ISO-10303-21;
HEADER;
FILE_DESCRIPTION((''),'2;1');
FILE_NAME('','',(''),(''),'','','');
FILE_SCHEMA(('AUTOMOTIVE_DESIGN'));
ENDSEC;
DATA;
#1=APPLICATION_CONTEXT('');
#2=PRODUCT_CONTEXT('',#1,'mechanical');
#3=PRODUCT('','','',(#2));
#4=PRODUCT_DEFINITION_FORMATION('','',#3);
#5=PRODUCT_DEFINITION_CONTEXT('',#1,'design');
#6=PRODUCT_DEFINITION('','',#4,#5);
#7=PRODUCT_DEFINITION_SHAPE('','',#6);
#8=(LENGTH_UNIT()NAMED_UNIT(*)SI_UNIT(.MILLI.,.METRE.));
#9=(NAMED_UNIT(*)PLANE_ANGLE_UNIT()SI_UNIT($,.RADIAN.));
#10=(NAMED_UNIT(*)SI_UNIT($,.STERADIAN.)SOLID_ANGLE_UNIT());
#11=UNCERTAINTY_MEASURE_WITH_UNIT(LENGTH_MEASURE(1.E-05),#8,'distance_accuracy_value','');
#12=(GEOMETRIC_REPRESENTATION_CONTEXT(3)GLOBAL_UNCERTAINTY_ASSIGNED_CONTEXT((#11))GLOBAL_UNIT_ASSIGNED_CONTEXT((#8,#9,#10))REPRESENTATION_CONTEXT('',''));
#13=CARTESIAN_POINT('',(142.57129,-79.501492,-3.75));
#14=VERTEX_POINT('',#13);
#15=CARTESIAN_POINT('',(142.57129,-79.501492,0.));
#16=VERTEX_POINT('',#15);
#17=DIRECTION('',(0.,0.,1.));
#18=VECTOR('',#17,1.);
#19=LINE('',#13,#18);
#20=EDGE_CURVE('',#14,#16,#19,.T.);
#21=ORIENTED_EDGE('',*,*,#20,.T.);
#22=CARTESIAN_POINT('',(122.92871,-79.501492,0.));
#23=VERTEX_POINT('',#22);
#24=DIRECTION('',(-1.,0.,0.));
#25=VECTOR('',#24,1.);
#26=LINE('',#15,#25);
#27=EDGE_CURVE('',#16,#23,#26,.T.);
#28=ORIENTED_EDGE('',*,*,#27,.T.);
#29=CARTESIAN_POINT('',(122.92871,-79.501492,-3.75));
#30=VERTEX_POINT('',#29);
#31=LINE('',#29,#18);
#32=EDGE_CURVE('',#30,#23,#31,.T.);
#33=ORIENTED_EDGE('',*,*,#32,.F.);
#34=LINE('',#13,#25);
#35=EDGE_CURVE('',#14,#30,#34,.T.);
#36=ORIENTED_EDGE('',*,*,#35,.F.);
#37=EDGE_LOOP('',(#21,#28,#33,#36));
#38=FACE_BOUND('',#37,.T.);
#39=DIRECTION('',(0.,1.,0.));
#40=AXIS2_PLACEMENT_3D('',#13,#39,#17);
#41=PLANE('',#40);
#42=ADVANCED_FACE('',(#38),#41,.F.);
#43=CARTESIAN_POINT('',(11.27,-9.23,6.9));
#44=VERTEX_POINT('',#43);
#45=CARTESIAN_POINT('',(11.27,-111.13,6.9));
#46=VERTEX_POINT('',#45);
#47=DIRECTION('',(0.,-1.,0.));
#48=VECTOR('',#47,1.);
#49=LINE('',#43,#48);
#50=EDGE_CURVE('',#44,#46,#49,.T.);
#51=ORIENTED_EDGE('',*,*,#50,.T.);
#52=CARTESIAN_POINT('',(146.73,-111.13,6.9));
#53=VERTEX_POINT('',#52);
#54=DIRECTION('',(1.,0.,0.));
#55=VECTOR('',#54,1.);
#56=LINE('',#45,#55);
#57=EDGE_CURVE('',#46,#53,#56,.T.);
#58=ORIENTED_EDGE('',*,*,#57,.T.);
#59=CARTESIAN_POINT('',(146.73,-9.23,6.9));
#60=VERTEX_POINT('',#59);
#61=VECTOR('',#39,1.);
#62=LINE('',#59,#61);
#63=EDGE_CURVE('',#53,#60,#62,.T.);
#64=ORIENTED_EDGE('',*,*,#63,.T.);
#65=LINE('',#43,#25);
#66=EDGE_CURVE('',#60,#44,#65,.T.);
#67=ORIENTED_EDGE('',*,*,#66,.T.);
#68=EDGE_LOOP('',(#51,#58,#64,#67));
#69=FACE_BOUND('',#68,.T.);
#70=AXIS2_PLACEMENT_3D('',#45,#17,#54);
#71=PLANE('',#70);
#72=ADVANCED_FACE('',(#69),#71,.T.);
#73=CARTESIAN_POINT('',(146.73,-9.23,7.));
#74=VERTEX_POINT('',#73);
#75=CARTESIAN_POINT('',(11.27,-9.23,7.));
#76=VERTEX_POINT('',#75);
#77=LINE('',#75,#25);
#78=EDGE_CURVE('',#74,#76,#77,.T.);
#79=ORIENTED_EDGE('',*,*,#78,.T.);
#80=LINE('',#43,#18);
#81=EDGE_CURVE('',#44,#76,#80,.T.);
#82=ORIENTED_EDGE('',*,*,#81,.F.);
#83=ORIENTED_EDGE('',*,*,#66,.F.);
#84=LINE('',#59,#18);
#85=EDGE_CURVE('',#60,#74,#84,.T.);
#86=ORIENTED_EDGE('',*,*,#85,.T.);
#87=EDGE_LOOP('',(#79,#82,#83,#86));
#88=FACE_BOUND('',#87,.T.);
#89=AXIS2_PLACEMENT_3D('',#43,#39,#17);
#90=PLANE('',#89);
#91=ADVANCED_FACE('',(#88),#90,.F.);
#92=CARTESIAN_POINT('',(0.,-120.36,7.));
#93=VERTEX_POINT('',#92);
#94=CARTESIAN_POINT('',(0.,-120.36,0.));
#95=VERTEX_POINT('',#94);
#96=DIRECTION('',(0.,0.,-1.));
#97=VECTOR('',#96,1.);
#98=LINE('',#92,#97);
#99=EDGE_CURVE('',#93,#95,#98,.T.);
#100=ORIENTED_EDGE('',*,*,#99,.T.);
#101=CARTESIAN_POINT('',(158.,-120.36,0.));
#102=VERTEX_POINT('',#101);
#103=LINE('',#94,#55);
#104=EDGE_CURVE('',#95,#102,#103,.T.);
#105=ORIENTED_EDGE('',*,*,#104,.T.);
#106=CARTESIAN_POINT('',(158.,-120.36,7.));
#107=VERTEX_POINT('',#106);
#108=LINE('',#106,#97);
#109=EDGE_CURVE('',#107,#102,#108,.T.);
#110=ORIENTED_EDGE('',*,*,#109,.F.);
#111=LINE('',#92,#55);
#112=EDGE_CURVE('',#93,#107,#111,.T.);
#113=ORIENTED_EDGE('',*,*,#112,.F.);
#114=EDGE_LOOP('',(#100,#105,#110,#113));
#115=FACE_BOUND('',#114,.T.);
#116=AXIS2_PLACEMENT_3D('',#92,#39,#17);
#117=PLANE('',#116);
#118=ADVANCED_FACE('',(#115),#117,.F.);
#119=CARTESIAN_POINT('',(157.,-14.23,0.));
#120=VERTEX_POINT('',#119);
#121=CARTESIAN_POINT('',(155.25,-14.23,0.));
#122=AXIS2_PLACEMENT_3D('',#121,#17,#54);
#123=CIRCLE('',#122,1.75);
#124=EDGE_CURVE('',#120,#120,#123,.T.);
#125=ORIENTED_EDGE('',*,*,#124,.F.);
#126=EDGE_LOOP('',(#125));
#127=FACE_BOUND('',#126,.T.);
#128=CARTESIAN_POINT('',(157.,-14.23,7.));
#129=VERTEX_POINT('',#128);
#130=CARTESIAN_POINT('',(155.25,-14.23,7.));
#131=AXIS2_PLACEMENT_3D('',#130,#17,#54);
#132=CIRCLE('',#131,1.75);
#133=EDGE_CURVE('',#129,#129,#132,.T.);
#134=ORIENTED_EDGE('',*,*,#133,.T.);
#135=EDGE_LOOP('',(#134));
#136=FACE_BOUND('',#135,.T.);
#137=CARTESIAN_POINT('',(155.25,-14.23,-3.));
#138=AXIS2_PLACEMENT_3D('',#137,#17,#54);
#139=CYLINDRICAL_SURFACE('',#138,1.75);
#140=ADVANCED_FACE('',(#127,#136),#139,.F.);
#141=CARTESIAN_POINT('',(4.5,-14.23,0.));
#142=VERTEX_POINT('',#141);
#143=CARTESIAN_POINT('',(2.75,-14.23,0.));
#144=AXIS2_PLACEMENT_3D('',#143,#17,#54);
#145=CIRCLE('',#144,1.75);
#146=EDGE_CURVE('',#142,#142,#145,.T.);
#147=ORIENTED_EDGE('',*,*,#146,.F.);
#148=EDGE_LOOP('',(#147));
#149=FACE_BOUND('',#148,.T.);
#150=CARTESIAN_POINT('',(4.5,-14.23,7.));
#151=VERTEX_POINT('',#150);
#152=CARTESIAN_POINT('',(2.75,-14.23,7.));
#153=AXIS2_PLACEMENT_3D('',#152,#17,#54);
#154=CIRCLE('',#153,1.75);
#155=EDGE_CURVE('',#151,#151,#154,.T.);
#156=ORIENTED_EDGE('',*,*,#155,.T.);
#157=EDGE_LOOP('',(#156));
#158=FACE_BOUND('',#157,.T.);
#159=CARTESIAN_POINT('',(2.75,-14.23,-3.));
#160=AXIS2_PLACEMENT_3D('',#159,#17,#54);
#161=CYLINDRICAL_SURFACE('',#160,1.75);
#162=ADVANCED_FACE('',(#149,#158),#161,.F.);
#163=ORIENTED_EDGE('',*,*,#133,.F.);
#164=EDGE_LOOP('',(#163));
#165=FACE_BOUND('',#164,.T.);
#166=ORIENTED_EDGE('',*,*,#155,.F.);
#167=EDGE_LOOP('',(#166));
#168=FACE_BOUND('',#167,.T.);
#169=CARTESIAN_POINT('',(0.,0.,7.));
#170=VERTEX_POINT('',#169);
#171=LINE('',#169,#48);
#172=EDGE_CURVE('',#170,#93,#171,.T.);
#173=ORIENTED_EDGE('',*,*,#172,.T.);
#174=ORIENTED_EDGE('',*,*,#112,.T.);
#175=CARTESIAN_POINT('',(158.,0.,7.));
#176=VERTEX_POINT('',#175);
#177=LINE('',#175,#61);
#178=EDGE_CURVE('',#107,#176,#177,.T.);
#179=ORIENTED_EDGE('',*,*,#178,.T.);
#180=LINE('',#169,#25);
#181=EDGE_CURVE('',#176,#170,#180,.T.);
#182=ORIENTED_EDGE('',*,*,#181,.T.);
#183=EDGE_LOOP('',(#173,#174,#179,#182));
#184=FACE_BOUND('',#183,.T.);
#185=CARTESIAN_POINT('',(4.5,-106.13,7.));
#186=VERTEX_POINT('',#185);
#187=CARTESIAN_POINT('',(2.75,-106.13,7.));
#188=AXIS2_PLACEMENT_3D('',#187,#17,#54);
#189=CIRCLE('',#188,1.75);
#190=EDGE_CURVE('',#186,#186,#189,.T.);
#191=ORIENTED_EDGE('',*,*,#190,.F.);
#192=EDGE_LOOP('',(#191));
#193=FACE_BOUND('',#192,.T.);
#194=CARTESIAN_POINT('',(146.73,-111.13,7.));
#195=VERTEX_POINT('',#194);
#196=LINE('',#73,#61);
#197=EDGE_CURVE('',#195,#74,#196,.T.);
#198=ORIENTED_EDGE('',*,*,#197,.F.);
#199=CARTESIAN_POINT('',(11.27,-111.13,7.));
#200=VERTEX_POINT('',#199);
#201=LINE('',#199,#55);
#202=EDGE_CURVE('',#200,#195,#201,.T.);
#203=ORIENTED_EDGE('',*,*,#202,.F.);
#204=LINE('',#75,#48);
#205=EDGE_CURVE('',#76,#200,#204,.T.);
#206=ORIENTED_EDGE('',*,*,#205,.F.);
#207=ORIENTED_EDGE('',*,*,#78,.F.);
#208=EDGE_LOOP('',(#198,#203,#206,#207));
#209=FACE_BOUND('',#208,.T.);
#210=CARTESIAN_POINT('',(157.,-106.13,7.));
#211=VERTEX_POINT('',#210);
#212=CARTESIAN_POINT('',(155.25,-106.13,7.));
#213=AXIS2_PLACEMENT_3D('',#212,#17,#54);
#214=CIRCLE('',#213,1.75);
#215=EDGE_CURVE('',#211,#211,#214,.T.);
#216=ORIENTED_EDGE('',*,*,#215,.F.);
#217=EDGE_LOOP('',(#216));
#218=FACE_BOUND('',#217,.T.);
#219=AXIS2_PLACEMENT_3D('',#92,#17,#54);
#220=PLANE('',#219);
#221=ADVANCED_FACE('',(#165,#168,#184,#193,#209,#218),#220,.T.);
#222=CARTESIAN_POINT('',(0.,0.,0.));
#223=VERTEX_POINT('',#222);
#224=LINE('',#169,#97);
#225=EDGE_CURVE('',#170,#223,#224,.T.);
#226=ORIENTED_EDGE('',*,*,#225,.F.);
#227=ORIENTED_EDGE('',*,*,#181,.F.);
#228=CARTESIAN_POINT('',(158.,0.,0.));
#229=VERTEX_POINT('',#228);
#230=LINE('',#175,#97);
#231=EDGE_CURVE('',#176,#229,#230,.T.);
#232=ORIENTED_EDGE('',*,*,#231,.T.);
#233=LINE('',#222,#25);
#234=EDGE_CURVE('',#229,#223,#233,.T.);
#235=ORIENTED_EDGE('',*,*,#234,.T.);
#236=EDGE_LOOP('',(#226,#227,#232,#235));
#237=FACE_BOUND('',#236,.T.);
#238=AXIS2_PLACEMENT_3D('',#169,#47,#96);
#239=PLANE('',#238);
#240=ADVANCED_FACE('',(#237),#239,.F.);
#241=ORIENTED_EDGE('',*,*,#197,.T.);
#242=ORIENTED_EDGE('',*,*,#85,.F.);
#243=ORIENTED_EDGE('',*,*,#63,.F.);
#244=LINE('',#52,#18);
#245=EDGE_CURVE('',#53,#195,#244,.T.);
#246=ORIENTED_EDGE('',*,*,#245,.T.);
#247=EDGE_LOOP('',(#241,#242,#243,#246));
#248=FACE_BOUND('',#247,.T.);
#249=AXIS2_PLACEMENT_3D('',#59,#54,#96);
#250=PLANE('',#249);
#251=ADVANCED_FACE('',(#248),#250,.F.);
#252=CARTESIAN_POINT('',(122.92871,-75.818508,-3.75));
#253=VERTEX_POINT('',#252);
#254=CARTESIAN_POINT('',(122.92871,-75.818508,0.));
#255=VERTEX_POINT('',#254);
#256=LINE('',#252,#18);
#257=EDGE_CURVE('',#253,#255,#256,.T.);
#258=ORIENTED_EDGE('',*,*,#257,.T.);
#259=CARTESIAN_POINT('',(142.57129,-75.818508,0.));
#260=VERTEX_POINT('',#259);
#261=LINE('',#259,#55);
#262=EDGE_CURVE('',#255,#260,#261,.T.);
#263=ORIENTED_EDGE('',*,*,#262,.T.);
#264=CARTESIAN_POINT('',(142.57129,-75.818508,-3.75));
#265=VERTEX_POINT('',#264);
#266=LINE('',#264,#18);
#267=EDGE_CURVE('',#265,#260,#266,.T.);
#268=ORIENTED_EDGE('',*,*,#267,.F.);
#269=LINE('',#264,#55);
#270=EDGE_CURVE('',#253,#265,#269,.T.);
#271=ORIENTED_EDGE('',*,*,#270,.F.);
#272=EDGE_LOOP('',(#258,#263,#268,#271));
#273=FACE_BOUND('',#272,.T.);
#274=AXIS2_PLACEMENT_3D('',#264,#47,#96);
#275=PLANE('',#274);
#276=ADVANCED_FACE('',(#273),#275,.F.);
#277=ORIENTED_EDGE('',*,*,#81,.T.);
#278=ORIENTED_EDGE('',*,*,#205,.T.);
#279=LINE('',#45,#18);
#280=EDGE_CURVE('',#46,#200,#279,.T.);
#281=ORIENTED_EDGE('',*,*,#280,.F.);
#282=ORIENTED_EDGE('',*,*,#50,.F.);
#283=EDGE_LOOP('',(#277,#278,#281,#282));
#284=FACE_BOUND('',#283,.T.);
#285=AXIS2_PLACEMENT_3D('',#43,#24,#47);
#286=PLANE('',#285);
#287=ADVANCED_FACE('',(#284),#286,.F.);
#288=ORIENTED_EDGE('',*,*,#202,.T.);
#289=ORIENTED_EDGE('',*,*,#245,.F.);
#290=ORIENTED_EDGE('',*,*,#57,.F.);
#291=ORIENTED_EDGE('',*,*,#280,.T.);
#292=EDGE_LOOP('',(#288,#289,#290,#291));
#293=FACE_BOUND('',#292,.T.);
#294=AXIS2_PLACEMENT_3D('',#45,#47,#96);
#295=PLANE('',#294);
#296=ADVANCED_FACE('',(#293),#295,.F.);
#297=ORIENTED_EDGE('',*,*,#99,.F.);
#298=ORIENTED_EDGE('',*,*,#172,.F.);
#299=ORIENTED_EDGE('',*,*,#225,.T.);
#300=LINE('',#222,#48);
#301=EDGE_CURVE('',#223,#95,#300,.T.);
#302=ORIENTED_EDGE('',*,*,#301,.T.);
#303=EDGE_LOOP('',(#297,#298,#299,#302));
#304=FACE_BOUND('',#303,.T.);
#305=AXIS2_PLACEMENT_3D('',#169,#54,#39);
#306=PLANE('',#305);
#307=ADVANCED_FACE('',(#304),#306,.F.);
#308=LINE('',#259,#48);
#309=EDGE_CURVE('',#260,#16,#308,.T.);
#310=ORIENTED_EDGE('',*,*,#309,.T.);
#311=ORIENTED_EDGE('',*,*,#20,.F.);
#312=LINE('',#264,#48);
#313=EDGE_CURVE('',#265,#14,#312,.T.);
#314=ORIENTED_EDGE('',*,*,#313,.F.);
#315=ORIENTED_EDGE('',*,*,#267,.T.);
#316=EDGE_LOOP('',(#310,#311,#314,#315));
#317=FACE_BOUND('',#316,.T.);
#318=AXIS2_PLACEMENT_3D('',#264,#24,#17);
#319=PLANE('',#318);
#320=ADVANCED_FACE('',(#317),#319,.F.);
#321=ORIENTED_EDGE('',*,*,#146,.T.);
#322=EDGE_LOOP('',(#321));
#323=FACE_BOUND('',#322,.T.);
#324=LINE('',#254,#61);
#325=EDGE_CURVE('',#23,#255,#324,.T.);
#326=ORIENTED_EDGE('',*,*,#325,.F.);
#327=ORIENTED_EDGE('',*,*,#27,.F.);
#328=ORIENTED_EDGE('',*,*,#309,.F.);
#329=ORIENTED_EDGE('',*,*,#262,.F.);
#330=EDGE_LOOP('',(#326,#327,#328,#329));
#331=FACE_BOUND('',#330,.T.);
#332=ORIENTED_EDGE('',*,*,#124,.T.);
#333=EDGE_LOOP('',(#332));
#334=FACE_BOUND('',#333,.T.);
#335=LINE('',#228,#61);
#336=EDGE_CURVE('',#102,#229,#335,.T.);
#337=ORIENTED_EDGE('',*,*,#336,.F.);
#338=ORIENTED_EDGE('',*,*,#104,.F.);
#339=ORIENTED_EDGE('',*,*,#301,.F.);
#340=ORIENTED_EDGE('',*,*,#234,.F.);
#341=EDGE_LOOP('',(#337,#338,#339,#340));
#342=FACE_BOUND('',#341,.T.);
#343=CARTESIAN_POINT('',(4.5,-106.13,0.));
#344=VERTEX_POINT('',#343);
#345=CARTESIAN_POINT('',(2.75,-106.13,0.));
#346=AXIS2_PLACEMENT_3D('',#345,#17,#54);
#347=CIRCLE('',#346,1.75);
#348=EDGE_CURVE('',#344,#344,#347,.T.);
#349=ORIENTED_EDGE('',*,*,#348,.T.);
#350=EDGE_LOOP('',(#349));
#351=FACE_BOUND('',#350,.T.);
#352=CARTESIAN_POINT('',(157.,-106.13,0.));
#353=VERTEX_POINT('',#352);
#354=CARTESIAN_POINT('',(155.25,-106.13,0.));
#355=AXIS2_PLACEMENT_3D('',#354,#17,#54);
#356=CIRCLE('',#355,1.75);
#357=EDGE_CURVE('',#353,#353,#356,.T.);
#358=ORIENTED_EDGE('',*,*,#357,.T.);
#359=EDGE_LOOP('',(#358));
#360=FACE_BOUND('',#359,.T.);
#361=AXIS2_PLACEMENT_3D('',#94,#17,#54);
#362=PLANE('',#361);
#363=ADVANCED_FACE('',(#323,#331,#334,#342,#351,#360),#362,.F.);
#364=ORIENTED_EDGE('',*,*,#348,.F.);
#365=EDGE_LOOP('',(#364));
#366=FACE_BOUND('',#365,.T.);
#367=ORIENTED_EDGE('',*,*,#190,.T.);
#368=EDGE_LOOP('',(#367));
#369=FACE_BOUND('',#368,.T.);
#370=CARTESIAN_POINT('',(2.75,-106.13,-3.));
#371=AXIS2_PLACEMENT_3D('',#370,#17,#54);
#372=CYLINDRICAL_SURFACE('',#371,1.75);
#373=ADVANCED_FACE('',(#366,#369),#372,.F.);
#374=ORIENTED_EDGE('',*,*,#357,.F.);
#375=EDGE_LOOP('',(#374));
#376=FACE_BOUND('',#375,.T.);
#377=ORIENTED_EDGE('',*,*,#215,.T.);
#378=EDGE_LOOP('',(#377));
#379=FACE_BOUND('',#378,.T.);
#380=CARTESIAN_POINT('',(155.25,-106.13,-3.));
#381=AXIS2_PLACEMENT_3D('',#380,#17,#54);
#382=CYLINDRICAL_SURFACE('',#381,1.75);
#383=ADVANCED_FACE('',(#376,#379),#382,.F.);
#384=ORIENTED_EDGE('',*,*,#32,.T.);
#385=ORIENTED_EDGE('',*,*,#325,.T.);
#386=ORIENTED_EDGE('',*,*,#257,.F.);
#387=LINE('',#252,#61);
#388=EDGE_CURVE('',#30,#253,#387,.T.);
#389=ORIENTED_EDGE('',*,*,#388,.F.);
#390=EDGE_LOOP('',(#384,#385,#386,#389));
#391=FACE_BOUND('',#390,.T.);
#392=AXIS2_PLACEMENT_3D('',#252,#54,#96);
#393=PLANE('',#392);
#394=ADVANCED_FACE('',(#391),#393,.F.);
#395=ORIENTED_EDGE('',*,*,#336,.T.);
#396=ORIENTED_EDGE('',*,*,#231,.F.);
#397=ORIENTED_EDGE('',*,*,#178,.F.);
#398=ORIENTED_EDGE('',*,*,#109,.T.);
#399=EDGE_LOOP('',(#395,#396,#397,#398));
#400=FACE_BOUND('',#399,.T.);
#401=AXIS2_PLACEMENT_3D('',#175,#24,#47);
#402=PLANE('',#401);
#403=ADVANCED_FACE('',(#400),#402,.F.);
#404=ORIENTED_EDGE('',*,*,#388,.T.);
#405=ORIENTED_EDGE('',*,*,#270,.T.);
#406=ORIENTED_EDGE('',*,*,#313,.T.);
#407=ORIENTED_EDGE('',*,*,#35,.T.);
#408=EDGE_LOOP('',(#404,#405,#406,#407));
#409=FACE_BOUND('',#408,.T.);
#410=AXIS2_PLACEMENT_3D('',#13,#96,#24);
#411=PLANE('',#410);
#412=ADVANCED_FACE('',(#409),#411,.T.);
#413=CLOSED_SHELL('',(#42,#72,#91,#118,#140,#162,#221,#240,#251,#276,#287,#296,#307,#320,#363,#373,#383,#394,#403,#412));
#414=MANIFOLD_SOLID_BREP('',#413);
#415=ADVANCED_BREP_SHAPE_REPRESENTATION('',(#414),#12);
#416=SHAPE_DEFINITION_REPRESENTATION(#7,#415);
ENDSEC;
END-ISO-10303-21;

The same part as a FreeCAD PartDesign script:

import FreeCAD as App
import Part
import Sketcher

doc = App.newDocument("Part")
body = doc.addObject("PartDesign::Body", "Body")

# Sketch on XY plane
sketch1 = doc.addObject("Sketcher::SketchObject", "Sketch")
body.addObject(sketch1)
sketch1.AttachmentSupport = (doc.XY_Plane, [""])
sketch1.MapMode = "FlatFace"
sketch1.addGeometry([
    Part.LineSegment(App.Vector(0, 0, 0), App.Vector(0, -120, 0)),
    Part.LineSegment(App.Vector(0, -120, 0), App.Vector(158, -120, 0)),
    Part.LineSegment(App.Vector(158, -120, 0), App.Vector(158, 0, 0)),
    Part.LineSegment(App.Vector(158, 0, 0), App.Vector(0, 0, 0)),
], False)
sketch1.addConstraint([
    Sketcher.Constraint("Coincident", 0, 2, 1, 1),
    Sketcher.Constraint("Coincident", 1, 2, 2, 1),
    Sketcher.Constraint("Coincident", 2, 2, 3, 1),
    Sketcher.Constraint("Coincident", 3, 2, 0, 1),
    Sketcher.Constraint("Vertical", 0),
    Sketcher.Constraint("Horizontal", 1),
    Sketcher.Constraint("Vertical", 2),
    Sketcher.Constraint("Horizontal", 3),
    Sketcher.Constraint("Coincident", 3, 2, -1, 1),
    Sketcher.Constraint("DistanceX", 1, 1, 1, 2, 158.0),
    Sketcher.Constraint("DistanceY", 0, 2, 0, 1, 120.36),
])
pad1 = doc.addObject("PartDesign::Pad", "Pad")
body.addObject(pad1)
pad1.Profile = sketch1
pad1.Length = 7

# Sketch on XY plane
sketch2 = doc.addObject("Sketcher::SketchObject", "Sketch001")
body.addObject(sketch2)
sketch2.AttachmentSupport = (doc.XY_Plane, [""])
sketch2.MapMode = "FlatFace"
sketch2.AttachmentOffset = App.Placement(App.Vector(0, 0, 7), App.Rotation())
sketch2.addGeometry([
    Part.LineSegment(App.Vector(11, -9, 0), App.Vector(11, -111, 0)),
    Part.LineSegment(App.Vector(11, -111, 0), App.Vector(147, -111, 0)),
    Part.LineSegment(App.Vector(147, -111, 0), App.Vector(147, -9, 0)),
    Part.LineSegment(App.Vector(147, -9, 0), App.Vector(11, -9, 0)),
], False)
sketch2.addConstraint([
    Sketcher.Constraint("Coincident", 0, 2, 1, 1),
    Sketcher.Constraint("Coincident", 1, 2, 2, 1),
    Sketcher.Constraint("Coincident", 2, 2, 3, 1),
    Sketcher.Constraint("Coincident", 3, 2, 0, 1),
    Sketcher.Constraint("Vertical", 0),
    Sketcher.Constraint("Horizontal", 1),
    Sketcher.Constraint("Vertical", 2),
    Sketcher.Constraint("Horizontal", 3),
    Sketcher.Constraint("DistanceY", 0, 2, 0, 1, 101.9),
    Sketcher.Constraint("DistanceX", 1, 1, 1, 2, 135.46),
    Sketcher.Constraint("DistanceX", -1, 1, 0, 2, 11.27),
    Sketcher.Constraint("DistanceY", 0, 2, -1, 1, 111.13),
])
pocket1 = doc.addObject("PartDesign::Pocket", "Pocket")
body.addObject(pocket1)
pocket1.Profile = sketch2
pocket1.Length = 0.1

# Sketch on XY plane
sketch3 = doc.addObject("Sketcher::SketchObject", "Sketch002")
body.addObject(sketch3)
sketch3.AttachmentSupport = (doc.XY_Plane, [""])
sketch3.MapMode = "FlatFace"
sketch3.AttachmentOffset = App.Placement(App.Vector(0, 0, 7), App.Rotation())
sketch3.addGeometry([
    Part.Circle(App.Vector(155.2, -14.2, 0), App.Vector(0, 0, 1), 1.8),
    Part.Circle(App.Vector(155.2, -106.1, 0), App.Vector(0, 0, 1), 1.8),
    Part.Circle(App.Vector(2.8, -14.2, 0), App.Vector(0, 0, 1), 1.8),
    Part.Circle(App.Vector(2.8, -106.1, 0), App.Vector(0, 0, 1), 1.8),
], False)
sketch3.addConstraint([
    Sketcher.Constraint("Equal", 0, 1),
    Sketcher.Constraint("Equal", 1, 2),
    Sketcher.Constraint("Equal", 2, 3),
    Sketcher.Constraint("Horizontal", 0, 3, 2, 3),
    Sketcher.Constraint("Horizontal", 1, 3, 3, 3),
    Sketcher.Constraint("Vertical", 0, 3, 1, 3),
    Sketcher.Constraint("Vertical", 2, 3, 3, 3),
    Sketcher.Constraint("Diameter", 0, 3.5),
    Sketcher.Constraint("DistanceY", 1, 3, 0, 3, 91.9),
    Sketcher.Constraint("DistanceX", 2, 3, 0, 3, 152.5),
    Sketcher.Constraint("DistanceX", -1, 1, 0, 3, 155.25),
    Sketcher.Constraint("DistanceY", 0, 3, -1, 1, 14.23),
])
pocket2 = doc.addObject("PartDesign::Pocket", "Pocket001")
body.addObject(pocket2)
pocket2.Profile = sketch3
pocket2.Length = 10

# Sketch on XY plane
sketch4 = doc.addObject("Sketcher::SketchObject", "Sketch003")
body.addObject(sketch4)
sketch4.AttachmentSupport = (doc.XY_Plane, [""])
sketch4.MapMode = "FlatFace"
sketch4.addGeometry([
    Part.LineSegment(App.Vector(142.6, -75.8, 0), App.Vector(142.6, -79.5, 0)),
    Part.LineSegment(App.Vector(142.6, -79.5, 0), App.Vector(122.9, -79.5, 0)),
    Part.LineSegment(App.Vector(122.9, -79.5, 0), App.Vector(122.9, -75.8, 0)),
    Part.LineSegment(App.Vector(122.9, -75.8, 0), App.Vector(142.6, -75.8, 0)),
], False)
sketch4.addConstraint([
    Sketcher.Constraint("Coincident", 0, 2, 1, 1),
    Sketcher.Constraint("Coincident", 1, 2, 2, 1),
    Sketcher.Constraint("Coincident", 2, 2, 3, 1),
    Sketcher.Constraint("Coincident", 3, 2, 0, 1),
    Sketcher.Constraint("Vertical", 0),
    Sketcher.Constraint("Horizontal", 1),
    Sketcher.Constraint("Vertical", 2),
    Sketcher.Constraint("Horizontal", 3),
    Sketcher.Constraint("DistanceX", 1, 2, 1, 1, 19.64258),
    Sketcher.Constraint("DistanceY", 0, 2, 0, 1, 3.682984),
    Sketcher.Constraint("DistanceX", -1, 1, 0, 2, 142.57129),
    Sketcher.Constraint("DistanceY", 0, 2, -1, 1, 79.501492),
])
pad2 = doc.addObject("PartDesign::Pad", "Pad001")
body.addObject(pad2)
pad2.Profile = sketch4
pad2.Length = 3.75
pad2.Reversed = True

doc.recompute()
